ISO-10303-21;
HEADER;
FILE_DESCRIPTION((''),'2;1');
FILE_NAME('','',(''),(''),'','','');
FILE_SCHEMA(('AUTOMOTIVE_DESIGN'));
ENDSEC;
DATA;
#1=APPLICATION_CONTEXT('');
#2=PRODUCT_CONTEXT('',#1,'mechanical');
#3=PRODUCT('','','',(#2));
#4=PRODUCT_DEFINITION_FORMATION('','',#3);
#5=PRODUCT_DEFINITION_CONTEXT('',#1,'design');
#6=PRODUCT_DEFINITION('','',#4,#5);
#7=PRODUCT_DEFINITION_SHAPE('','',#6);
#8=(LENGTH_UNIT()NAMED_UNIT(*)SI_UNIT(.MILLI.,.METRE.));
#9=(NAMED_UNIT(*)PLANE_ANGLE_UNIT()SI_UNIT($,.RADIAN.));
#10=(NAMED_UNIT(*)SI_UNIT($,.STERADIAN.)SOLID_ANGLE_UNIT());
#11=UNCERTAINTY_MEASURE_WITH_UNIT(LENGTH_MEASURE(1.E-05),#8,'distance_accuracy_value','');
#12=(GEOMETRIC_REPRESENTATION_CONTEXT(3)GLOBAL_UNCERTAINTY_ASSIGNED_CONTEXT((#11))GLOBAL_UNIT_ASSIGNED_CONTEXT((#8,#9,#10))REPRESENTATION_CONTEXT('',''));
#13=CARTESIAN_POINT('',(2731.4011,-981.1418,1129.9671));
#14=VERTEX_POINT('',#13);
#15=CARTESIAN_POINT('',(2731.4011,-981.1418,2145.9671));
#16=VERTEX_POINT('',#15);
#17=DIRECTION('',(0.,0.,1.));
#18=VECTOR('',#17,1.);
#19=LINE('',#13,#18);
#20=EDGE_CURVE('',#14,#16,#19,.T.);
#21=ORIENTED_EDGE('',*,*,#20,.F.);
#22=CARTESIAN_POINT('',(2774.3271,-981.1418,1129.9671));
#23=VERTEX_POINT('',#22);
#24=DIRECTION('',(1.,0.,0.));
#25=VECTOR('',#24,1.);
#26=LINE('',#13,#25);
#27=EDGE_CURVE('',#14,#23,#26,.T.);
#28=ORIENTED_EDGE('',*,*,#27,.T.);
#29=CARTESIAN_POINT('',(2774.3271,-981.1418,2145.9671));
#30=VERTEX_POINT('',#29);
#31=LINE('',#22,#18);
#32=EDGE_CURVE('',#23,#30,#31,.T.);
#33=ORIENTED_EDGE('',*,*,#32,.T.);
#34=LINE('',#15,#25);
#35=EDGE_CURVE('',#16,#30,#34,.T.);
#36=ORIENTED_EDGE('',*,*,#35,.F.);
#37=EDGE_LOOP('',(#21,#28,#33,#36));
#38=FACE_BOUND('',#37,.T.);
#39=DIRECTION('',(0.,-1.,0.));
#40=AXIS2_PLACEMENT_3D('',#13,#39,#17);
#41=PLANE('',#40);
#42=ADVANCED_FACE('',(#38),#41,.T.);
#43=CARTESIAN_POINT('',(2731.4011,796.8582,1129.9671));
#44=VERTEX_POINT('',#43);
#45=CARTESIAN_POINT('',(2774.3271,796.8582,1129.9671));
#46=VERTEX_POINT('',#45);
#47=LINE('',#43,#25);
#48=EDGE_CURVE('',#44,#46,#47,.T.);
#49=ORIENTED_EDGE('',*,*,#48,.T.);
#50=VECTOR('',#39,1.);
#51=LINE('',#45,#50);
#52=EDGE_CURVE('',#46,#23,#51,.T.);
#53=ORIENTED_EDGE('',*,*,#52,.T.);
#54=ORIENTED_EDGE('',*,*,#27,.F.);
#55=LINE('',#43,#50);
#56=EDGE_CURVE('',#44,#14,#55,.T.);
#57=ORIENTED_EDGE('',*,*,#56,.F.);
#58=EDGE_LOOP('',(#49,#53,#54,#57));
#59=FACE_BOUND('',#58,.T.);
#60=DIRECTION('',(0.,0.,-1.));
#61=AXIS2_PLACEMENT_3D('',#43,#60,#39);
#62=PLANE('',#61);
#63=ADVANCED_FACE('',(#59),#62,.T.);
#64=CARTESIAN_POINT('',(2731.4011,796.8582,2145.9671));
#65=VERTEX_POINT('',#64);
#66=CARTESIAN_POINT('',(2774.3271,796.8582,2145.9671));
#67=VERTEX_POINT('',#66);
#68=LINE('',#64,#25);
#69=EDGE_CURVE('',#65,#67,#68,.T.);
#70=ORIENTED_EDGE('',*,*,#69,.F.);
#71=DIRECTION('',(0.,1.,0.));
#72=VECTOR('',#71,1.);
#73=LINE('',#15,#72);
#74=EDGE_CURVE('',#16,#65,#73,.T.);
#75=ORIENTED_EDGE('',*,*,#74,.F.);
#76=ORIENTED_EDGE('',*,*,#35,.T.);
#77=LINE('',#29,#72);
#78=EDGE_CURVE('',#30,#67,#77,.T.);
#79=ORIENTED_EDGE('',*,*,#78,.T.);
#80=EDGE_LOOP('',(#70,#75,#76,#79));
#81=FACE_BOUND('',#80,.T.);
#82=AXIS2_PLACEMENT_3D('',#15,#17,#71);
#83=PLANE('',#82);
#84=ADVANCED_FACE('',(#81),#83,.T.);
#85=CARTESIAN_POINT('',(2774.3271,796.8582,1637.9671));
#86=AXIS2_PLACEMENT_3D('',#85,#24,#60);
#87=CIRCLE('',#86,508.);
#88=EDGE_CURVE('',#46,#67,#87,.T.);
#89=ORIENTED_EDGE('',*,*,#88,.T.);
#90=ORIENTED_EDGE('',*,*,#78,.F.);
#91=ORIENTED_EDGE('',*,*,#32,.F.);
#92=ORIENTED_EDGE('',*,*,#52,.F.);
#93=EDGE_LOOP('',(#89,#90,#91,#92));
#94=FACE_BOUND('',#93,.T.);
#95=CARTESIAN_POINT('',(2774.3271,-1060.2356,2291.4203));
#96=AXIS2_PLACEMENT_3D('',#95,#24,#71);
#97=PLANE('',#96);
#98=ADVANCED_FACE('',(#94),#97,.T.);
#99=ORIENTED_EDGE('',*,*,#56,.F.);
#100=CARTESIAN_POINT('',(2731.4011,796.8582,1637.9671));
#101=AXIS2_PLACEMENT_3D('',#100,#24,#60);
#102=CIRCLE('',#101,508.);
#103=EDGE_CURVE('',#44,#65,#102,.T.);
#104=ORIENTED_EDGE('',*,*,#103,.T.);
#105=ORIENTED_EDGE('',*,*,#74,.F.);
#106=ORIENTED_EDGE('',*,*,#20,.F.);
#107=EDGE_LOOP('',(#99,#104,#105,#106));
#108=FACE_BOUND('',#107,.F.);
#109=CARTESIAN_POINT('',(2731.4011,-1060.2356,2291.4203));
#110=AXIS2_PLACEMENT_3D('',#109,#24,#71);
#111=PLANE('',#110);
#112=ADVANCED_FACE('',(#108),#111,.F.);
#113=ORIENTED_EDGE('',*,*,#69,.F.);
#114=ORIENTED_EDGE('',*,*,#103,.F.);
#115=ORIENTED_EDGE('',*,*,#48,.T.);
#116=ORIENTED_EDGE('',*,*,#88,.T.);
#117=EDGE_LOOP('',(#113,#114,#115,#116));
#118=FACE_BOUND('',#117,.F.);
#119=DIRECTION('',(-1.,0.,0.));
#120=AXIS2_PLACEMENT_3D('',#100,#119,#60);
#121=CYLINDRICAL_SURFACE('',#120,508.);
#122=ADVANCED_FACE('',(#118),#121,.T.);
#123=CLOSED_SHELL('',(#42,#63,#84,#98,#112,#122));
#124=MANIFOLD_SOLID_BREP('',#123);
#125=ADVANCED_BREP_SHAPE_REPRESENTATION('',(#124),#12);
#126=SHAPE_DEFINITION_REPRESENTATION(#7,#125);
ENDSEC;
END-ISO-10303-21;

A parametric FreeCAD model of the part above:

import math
import FreeCAD as App
import Part
import Sketcher

V = App.Vector
Q = App.Units.Quantity

doc = App.newDocument("Part")
body = doc.addObject("PartDesign::Body", "Body")

# Sketch on YZ plane
sketch1 = doc.addObject("Sketcher::SketchObject", "Sketch")
body.addObject(sketch1)
sketch1.AttachmentSupport = (doc.YZ_Plane, [""])
sketch1.MapMode = "FlatFace"
sketch1.AttachmentOffset = App.Placement(V(0, 0, 2731.4011), App.Rotation())
sketch1.addGeometry(Part.LineSegment(V(797, 2146, 0), V(-981, 2146, 0)), False)
sketch1.addGeometry(Part.LineSegment(V(-981, 2146, 0), V(-981, 1130, 0)), False)
sketch1.addGeometry(Part.LineSegment(V(-981, 1130, 0), V(797, 1130, 0)), False)
sketch1.addGeometry(Part.ArcOfCircle(Part.Circle(V(797, 1638, 0), V(0, 0, 1), 508), math.radians(-90), math.radians(90)), False)
sketch1.addConstraint(Sketcher.Constraint("Coincident", 0, 2, 1, 1))
sketch1.addConstraint(Sketcher.Constraint("Coincident", 1, 2, 2, 1))
sketch1.addConstraint(Sketcher.Constraint("Tangent", 2, 2, 3, 1))
sketch1.addConstraint(Sketcher.Constraint("Tangent", 3, 2, 0, 1))
sketch1.addConstraint(Sketcher.Constraint("Horizontal", 0))
sketch1.addConstraint(Sketcher.Constraint("Vertical", 1))
sketch1.addConstraint(Sketcher.Constraint("Horizontal", 2))
sketch1.addConstraint(Sketcher.Constraint("Radius", 3, Q("20 in")))
sketch1.addConstraint(Sketcher.Constraint("DistanceX", 0, 2, 0, 1, Q("70 in")))
sketch1.addConstraint(Sketcher.Constraint("DistanceY", -1, 1, 3, 3, Q("64.4869 in")))
sketch1.addConstraint(Sketcher.Constraint("DistanceX", -1, 1, 3, 3, Q("796.8582 mm")))
pad1 = doc.addObject("PartDesign::Pad", "Pad")
body.addObject(pad1)
pad1.Profile = sketch1
pad1.Length = Q("1.69 in")

doc.recompute()
